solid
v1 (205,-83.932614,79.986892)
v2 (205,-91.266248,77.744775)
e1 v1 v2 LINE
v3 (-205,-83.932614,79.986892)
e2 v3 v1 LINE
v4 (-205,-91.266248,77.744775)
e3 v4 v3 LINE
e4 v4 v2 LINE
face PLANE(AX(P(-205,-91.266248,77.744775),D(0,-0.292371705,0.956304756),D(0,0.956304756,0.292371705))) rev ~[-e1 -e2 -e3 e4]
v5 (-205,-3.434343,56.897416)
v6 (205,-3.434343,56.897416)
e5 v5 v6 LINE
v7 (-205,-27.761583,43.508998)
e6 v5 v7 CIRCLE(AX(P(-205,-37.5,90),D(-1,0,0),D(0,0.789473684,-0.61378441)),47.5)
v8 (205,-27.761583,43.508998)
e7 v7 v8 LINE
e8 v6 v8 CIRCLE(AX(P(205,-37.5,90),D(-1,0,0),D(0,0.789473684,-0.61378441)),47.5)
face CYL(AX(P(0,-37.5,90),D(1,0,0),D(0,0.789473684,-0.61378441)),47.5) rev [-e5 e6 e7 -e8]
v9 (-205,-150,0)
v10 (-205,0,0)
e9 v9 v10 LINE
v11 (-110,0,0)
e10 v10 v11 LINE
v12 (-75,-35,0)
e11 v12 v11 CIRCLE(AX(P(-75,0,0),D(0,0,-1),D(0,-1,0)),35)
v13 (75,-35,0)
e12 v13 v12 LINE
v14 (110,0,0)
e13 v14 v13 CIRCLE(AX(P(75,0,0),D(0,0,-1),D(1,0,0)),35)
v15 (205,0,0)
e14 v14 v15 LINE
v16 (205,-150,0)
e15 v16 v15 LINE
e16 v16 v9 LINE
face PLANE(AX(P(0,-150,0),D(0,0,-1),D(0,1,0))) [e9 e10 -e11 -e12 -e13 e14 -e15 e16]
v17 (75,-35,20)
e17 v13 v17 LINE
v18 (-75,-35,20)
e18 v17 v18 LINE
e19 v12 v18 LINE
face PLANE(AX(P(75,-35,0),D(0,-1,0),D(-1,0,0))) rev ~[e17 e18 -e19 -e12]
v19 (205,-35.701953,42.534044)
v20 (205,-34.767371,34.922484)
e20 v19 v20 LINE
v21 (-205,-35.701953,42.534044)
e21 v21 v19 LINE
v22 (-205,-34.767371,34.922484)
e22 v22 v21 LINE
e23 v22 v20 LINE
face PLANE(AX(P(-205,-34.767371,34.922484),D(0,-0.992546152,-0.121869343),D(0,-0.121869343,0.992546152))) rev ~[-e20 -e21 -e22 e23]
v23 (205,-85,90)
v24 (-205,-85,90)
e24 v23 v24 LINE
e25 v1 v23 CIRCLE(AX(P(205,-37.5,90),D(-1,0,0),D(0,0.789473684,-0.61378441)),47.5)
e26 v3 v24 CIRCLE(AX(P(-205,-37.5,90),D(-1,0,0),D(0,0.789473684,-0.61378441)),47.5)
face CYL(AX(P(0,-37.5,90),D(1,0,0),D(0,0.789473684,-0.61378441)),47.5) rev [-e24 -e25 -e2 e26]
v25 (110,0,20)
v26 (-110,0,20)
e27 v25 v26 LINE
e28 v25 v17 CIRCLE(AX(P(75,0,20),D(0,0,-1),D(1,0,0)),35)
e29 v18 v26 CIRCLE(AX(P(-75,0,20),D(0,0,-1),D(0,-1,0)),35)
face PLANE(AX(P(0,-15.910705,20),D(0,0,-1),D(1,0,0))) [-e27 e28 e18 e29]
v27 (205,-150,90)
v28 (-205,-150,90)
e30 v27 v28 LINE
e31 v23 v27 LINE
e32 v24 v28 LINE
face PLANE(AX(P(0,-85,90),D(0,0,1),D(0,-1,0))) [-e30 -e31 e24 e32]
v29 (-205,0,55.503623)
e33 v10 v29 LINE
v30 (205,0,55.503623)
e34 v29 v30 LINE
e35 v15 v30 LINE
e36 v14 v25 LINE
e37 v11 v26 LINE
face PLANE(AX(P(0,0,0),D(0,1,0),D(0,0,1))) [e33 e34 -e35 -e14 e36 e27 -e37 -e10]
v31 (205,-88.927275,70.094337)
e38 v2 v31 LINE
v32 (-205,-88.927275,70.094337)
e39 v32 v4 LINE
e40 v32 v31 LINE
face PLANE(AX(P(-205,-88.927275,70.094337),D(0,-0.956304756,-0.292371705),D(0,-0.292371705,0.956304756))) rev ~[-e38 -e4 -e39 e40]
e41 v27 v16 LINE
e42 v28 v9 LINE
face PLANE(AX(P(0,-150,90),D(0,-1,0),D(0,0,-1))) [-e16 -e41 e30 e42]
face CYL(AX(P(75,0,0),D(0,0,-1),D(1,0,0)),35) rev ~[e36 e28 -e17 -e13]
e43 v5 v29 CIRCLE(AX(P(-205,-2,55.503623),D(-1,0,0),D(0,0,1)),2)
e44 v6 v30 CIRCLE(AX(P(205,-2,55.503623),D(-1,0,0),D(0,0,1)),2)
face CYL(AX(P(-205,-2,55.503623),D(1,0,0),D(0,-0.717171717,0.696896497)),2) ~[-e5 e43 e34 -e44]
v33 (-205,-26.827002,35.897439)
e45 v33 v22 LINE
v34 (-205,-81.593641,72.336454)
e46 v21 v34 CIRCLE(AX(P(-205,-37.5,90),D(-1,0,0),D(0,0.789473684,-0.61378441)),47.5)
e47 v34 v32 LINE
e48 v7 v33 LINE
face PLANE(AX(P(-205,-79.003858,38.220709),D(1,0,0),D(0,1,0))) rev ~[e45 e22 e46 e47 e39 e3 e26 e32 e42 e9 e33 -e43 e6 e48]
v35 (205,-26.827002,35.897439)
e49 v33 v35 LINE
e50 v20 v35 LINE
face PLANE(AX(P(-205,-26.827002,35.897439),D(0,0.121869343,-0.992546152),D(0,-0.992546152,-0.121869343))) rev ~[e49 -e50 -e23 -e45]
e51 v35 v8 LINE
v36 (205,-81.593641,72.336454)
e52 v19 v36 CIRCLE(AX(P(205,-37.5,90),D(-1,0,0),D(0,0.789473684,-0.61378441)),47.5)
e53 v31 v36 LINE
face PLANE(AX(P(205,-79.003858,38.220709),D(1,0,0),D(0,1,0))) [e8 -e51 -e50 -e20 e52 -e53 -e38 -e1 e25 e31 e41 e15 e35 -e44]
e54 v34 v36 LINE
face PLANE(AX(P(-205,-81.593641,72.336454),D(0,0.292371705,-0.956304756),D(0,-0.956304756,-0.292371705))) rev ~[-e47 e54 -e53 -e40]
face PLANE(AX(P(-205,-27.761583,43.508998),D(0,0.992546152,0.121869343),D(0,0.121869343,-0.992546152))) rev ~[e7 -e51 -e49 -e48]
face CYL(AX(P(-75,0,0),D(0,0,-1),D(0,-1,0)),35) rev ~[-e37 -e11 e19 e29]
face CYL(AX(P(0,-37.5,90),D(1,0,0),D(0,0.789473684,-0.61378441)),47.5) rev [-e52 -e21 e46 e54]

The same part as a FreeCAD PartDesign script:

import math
import FreeCAD as App
import Part
import Sketcher

V = App.Vector
Q = App.Units.Quantity


def edges_at(feature, points):
    """Names of the edges that pass closest to the given points."""
    edges = feature.Shape.Edges
    near = lambda p: min(range(len(edges)), key=lambda i: edges[i].distToShape(Part.Vertex(*p))[0])
    return sorted({f"Edge{near(p) + 1}" for p in points})


def add_polygon(sketch, points):
    """Adds a closed chain of lines whose ends are joined by coincident constraints."""
    first, n = sketch.GeometryCount, len(points)
    for a, b in zip(points, points[1:] + points[:1]):
        sketch.addGeometry(Part.LineSegment(App.Vector(*a, 0), App.Vector(*b, 0)), False)
    for i in range(n):
        sketch.addConstraint(Sketcher.Constraint("Coincident", first + i, 2, first + (i + 1) % n, 1))

doc = App.newDocument("Part")
params = doc.addObject("Spreadsheet::Sheet", "Params")
for row, (alias, value) in enumerate([
    ("sketch1_radius", "47.5 mm"),
    ("sketch1_width", "150 mm"),
    ("sketch1_width2", "65 mm"),
    ("sketch1_height", "90 mm"),
    ("pad1_length", "410 mm"),
    ("fillet_radius", "2 mm"),
    ("sketch2_radius", "35 mm"),
    ("sketch2_width", "150 mm"),
    ("pocket1_length", "20 mm"),
    ("sketch3_radius", "47.5 mm"),
    ("sketch3_length", "8 mm"),
], start=1):
    params.set(f"A{row}", alias)
    params.set(f"B{row}", "=" + value)
    params.setAlias(f"B{row}", alias)

body = doc.addObject("PartDesign::Body", "Body")

sketch1 = doc.addObject("Sketcher::SketchObject", "Sketch")
body.addObject(sketch1)
sketch1.AttachmentSupport = (doc.YZ_Plane, [""])
sketch1.MapMode = "FlatFace"
sketch1.addGeometry([
    Part.LineSegment(V(-150, 0, 0), V(0, 0, 0)),
    Part.LineSegment(V(0, 0, 0), V(0, 61, 0)),
    Part.ArcOfCircle(Part.Circle(V(-38, 90, 0), V(0, 0, 1), 48), math.radians(180), math.radians(322)),
    Part.LineSegment(V(-85, 90, 0), V(-150, 90, 0)),
    Part.LineSegment(V(-150, 90, 0), V(-150, 0, 0)),
], False)
sketch1.addConstraint([
    Sketcher.Constraint("Coincident", 0, 2, 1, 1),
    Sketcher.Constraint("Coincident", 1, 2, 2, 2),
    Sketcher.Constraint("Coincident", 2, 1, 3, 1),
    Sketcher.Constraint("Coincident", 3, 2, 4, 1),
    Sketcher.Constraint("Coincident", 4, 2, 0, 1),
    Sketcher.Constraint("Horizontal", 0),
    Sketcher.Constraint("Vertical", 1),
    Sketcher.Constraint("Horizontal", 3),
    Sketcher.Constraint("Vertical", 4),
    Sketcher.Constraint("Coincident", 0, 2, -1, 1),
    Sketcher.Constraint("Radius", 2, Q("47.5 mm")),
    Sketcher.Constraint("DistanceX", 0, 1, 0, 2, Q("150 mm")),
    Sketcher.Constraint("DistanceX", 3, 2, 3, 1, Q("65 mm")),
    Sketcher.Constraint("DistanceY", 4, 2, 4, 1, Q("90 mm")),
    Sketcher.Constraint("DistanceY", -1, 1, 2, 3, Q("90 mm")),
])
sketch1.setExpression("Constraints[10]", "Params.sketch1_radius")
sketch1.setExpression("Constraints[11]", "Params.sketch1_width")
sketch1.setExpression("Constraints[12]", "Params.sketch1_width2")
sketch1.setExpression("Constraints[13]", "Params.sketch1_height")
pad1 = doc.addObject("PartDesign::Pad", "Pad")
body.addObject(pad1)
pad1.Profile = sketch1
pad1.setExpression("Length", "Params.pad1_length")
pad1.Midplane = True
doc.recompute()

fillet = doc.addObject("PartDesign::Fillet", "Fillet")
body.addObject(fillet)
fillet.Base = (pad1, edges_at(pad1, [(0, 0, 60.845)]))
fillet.setExpression("Radius", "Params.fillet_radius")

sketch2 = doc.addObject("Sketcher::SketchObject", "Sketch001")
body.addObject(sketch2)
sketch2.AttachmentSupport = (doc.XY_Plane, [""])
sketch2.MapMode = "FlatFace"
sketch2.addGeometry([
    Part.ArcOfCircle(Part.Circle(V(75, 0, 0), V(0, 0, 1), 35), math.radians(-90), math.radians(0)),
    Part.LineSegment(V(75, -35, 0), V(-75, -35, 0)),
    Part.ArcOfCircle(Part.Circle(V(-75, 0, 0), V(0, 0, 1), 35), math.radians(180), math.radians(270)),
    Part.ArcOfCircle(Part.Circle(V(-75, 0, 0), V(0, 0, 1), 35), math.radians(90), math.radians(180)),
    Part.LineSegment(V(-75, 35, 0), V(75, 35, 0)),
    Part.ArcOfCircle(Part.Circle(V(75, 0, 0), V(0, 0, 1), 35), math.radians(0), math.radians(90)),
], False)
sketch2.addConstraint([
    Sketcher.Constraint("Tangent", 0, 1, 1, 1),
    Sketcher.Constraint("Tangent", 1, 2, 2, 2),
    Sketcher.Constraint("Tangent", 2, 1, 3, 2),
    Sketcher.Constraint("Tangent", 3, 1, 4, 1),
    Sketcher.Constraint("Tangent", 4, 2, 5, 2),
    Sketcher.Constraint("Tangent", 5, 1, 0, 2),
    Sketcher.Constraint("Horizontal", 1),
    Sketcher.Constraint("Horizontal", 4),
    Sketcher.Constraint("Equal", 0, 2),
    Sketcher.Constraint("Equal", 2, 3),
    Sketcher.Constraint("Symmetric", 0, 3, 2, 3, -1, 1),
    Sketcher.Constraint("PointOnObject", 2, 1, -1),
    Sketcher.Constraint("PointOnObject", 5, 1, -1),
    Sketcher.Constraint("Radius", 0, Q("35 mm")),
    Sketcher.Constraint("DistanceX", 1, 2, 1, 1, Q("150 mm")),
])
sketch2.setExpression("Constraints[13]", "Params.sketch2_radius")
sketch2.setExpression("Constraints[14]", "Params.sketch2_width")
pocket1 = doc.addObject("PartDesign::Pocket", "Pocket")
body.addObject(pocket1)
pocket1.Profile = sketch2
pocket1.setExpression("Length", "Params.pocket1_length")
pocket1.Reversed = True

sketch3 = doc.addObject("Sketcher::SketchObject", "Sketch002")
body.addObject(sketch3)
sketch3.AttachmentSupport = (doc.YZ_Plane, [""])
sketch3.MapMode = "FlatFace"
sketch3.AttachmentOffset = App.Placement(V(0, 0, -205), App.Rotation())
sketch3.addGeometry(Part.ArcOfCircle(Part.Circle(V(-38, 90, 0), V(0, 0, 1), 47), math.radians(-87.83), math.radians(-78.17)), False)
sketch3.addGeometry(Part.LineSegment(V(-28, 44, 0), V(-27, 36, 0)), False)
sketch3.addGeometry(Part.LineSegment(V(-27, 36, 0), V(-35, 35, 0)), False)
sketch3.addGeometry(Part.LineSegment(V(-35, 35, 0), V(-36, 43, 0)), False)
add_polygon(sketch3, [(-84, 80), (-79, 82), (-76, 74), (-82, 72), (-89, 70), (-91, 78)])
sketch3.addConstraint([
    Sketcher.Constraint("Coincident", 0, 2, 1, 1),
    Sketcher.Constraint("Coincident", 1, 2, 2, 1),
    Sketcher.Constraint("Coincident", 2, 2, 3, 1),
    Sketcher.Constraint("Coincident", 3, 2, 0, 1),
    Sketcher.Constraint("Perpendicular", 1, 2),
    Sketcher.Constraint("Perpendicular", 2, 3),
    Sketcher.Constraint("Perpendicular", 4, 5),
    Sketcher.Constraint("Perpendicular", 5, 6),
    Sketcher.Constraint("Parallel", 6, 7),
    Sketcher.Constraint("Perpendicular", 7, 8),
    Sketcher.Constraint("Perpendicular", 8, 9),
    Sketcher.Constraint("Equal", 1, 3),
    Sketcher.Constraint("Equal", 2, 5),
    Sketcher.Constraint("Equal", 4, 6),
    Sketcher.Constraint("Equal", 3, 7),
    Sketcher.Constraint("Radius", 0, Q("47.5 mm")),
    Sketcher.Constraint("Angle", 1, Q("-83 deg")),
    Sketcher.Constraint("Angle", 4, Q("17 deg")),
    Sketcher.Constraint("Distance", 2, Q("8 mm")),
    Sketcher.Constraint("DistanceY", -1, 1, 0, 3, Q("90 mm")),
    Sketcher.Constraint("DistanceX", 0, 3, -1, 1, Q("37.5 mm")),
    Sketcher.Constraint("DistanceX", 1, 2, -1, 1, Q("26.827002 mm")),
    Sketcher.Constraint("Distance", 4, Q("5.541221 mm")),
    Sketcher.Constraint("DistanceX", 4, 2, -1, 1, Q("78.633519 mm")),
    Sketcher.Constraint("DistanceY", -1, 1, 4, 2, Q("81.606988 mm")),
])
sketch3.setExpression("Constraints[21]", "Params.sketch3_radius")
sketch3.setExpression("Constraints[24]", "Params.sketch3_length")
pocket2 = doc.addObject("PartDesign::Pocket", "Pocket001")
body.addObject(pocket2)
pocket2.Profile = sketch3
pocket2.Type = "ThroughAll"
pocket2.Reversed = True

doc.recompute()
